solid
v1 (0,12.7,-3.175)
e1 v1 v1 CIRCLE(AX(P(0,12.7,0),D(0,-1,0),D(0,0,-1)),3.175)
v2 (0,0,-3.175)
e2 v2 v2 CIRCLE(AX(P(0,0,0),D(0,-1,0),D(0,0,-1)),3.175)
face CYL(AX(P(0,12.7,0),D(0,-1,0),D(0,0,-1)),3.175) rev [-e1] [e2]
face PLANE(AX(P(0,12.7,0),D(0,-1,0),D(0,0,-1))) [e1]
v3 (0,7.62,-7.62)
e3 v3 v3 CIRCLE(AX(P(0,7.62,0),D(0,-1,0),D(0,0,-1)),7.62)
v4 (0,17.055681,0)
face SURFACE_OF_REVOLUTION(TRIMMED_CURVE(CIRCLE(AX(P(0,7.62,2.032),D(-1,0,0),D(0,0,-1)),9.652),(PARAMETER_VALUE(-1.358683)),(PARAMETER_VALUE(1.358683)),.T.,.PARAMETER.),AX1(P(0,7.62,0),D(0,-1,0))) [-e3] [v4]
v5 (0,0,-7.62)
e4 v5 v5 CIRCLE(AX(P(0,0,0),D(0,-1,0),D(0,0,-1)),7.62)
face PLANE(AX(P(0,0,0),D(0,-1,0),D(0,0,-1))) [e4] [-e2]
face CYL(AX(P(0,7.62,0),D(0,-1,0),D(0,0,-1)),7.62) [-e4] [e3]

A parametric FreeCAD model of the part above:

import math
import FreeCAD as App
import Part
import Sketcher
from FreeCAD import Vector
Q = App.Units.Quantity

doc = App.newDocument("Part")
body = doc.addObject("PartDesign::Body", "Body")

# Sketch on XY plane
sketch1 = body.newObject("Sketcher::SketchObject", "Sketch")
sketch1.AttachmentSupport = (doc.getObject("XY_Plane"), [""])
sketch1.MapMode = "FlatFace"
sketch1.addGeometry(Part.ArcOfCircle(Part.Circle(Vector(-2, 8, 0), Vector(0, 0, 1), 10), math.radians(0), math.radians(78)), False)
sketch1.addGeometry(Part.LineSegment(Vector(0, 17, 0), Vector(0, 0, 0)), False)
sketch1.addGeometry(Part.LineSegment(Vector(0, 0, 0), Vector(8, 0, 0)), False)
sketch1.addGeometry(Part.LineSegment(Vector(8, 0, 0), Vector(8, 8, 0)), False)
sketch1.addConstraint(Sketcher.Constraint("Coincident", 0, 2, 1, 1))
sketch1.addConstraint(Sketcher.Constraint("Coincident", 1, 2, 2, 1))
sketch1.addConstraint(Sketcher.Constraint("Coincident", 2, 2, 3, 1))
sketch1.addConstraint(Sketcher.Constraint("Tangent", 3, 2, 0, 1))
sketch1.addConstraint(Sketcher.Constraint("Vertical", 1))
sketch1.addConstraint(Sketcher.Constraint("Horizontal", 2))
sketch1.addConstraint(Sketcher.Constraint("Vertical", 3))
sketch1.addConstraint(Sketcher.Constraint("Coincident", 1, 2, -1, 1))
sketch1.addConstraint(Sketcher.Constraint("Equal", 2, 3))
sketch1.addConstraint(Sketcher.Constraint("Radius", 0, Q("0.38 in")))
sketch1.addConstraint(Sketcher.Constraint("DistanceX", 2, 1, 2, 2, Q("0.3 in")))
revolution = body.newObject("PartDesign::Revolution", "Revolution")
revolution.Profile = sketch1
revolution.ReferenceAxis = (sketch1, ["V_Axis"])
revolution.Angle = 360

# Sketch on XZ plane
sketch2 = body.newObject("Sketcher::SketchObject", "Sketch001")
sketch2.AttachmentSupport = (doc.getObject("XZ_Plane"), [""])
sketch2.MapMode = "FlatFace"
sketch2.addGeometry(Part.Circle(Vector(0, 0, 0), Vector(0, 0, 1), 3.2), False)
sketch2.addConstraint(Sketcher.Constraint("Coincident", 0, 3, -1, 1))
sketch2.addConstraint(Sketcher.Constraint("Diameter", 0, Q("0.25 in")))
pocket1 = body.newObject("PartDesign::Pocket", "Pocket")
pocket1.Profile = sketch2
pocket1.Length = Q("0.5 in")

doc.recompute()
